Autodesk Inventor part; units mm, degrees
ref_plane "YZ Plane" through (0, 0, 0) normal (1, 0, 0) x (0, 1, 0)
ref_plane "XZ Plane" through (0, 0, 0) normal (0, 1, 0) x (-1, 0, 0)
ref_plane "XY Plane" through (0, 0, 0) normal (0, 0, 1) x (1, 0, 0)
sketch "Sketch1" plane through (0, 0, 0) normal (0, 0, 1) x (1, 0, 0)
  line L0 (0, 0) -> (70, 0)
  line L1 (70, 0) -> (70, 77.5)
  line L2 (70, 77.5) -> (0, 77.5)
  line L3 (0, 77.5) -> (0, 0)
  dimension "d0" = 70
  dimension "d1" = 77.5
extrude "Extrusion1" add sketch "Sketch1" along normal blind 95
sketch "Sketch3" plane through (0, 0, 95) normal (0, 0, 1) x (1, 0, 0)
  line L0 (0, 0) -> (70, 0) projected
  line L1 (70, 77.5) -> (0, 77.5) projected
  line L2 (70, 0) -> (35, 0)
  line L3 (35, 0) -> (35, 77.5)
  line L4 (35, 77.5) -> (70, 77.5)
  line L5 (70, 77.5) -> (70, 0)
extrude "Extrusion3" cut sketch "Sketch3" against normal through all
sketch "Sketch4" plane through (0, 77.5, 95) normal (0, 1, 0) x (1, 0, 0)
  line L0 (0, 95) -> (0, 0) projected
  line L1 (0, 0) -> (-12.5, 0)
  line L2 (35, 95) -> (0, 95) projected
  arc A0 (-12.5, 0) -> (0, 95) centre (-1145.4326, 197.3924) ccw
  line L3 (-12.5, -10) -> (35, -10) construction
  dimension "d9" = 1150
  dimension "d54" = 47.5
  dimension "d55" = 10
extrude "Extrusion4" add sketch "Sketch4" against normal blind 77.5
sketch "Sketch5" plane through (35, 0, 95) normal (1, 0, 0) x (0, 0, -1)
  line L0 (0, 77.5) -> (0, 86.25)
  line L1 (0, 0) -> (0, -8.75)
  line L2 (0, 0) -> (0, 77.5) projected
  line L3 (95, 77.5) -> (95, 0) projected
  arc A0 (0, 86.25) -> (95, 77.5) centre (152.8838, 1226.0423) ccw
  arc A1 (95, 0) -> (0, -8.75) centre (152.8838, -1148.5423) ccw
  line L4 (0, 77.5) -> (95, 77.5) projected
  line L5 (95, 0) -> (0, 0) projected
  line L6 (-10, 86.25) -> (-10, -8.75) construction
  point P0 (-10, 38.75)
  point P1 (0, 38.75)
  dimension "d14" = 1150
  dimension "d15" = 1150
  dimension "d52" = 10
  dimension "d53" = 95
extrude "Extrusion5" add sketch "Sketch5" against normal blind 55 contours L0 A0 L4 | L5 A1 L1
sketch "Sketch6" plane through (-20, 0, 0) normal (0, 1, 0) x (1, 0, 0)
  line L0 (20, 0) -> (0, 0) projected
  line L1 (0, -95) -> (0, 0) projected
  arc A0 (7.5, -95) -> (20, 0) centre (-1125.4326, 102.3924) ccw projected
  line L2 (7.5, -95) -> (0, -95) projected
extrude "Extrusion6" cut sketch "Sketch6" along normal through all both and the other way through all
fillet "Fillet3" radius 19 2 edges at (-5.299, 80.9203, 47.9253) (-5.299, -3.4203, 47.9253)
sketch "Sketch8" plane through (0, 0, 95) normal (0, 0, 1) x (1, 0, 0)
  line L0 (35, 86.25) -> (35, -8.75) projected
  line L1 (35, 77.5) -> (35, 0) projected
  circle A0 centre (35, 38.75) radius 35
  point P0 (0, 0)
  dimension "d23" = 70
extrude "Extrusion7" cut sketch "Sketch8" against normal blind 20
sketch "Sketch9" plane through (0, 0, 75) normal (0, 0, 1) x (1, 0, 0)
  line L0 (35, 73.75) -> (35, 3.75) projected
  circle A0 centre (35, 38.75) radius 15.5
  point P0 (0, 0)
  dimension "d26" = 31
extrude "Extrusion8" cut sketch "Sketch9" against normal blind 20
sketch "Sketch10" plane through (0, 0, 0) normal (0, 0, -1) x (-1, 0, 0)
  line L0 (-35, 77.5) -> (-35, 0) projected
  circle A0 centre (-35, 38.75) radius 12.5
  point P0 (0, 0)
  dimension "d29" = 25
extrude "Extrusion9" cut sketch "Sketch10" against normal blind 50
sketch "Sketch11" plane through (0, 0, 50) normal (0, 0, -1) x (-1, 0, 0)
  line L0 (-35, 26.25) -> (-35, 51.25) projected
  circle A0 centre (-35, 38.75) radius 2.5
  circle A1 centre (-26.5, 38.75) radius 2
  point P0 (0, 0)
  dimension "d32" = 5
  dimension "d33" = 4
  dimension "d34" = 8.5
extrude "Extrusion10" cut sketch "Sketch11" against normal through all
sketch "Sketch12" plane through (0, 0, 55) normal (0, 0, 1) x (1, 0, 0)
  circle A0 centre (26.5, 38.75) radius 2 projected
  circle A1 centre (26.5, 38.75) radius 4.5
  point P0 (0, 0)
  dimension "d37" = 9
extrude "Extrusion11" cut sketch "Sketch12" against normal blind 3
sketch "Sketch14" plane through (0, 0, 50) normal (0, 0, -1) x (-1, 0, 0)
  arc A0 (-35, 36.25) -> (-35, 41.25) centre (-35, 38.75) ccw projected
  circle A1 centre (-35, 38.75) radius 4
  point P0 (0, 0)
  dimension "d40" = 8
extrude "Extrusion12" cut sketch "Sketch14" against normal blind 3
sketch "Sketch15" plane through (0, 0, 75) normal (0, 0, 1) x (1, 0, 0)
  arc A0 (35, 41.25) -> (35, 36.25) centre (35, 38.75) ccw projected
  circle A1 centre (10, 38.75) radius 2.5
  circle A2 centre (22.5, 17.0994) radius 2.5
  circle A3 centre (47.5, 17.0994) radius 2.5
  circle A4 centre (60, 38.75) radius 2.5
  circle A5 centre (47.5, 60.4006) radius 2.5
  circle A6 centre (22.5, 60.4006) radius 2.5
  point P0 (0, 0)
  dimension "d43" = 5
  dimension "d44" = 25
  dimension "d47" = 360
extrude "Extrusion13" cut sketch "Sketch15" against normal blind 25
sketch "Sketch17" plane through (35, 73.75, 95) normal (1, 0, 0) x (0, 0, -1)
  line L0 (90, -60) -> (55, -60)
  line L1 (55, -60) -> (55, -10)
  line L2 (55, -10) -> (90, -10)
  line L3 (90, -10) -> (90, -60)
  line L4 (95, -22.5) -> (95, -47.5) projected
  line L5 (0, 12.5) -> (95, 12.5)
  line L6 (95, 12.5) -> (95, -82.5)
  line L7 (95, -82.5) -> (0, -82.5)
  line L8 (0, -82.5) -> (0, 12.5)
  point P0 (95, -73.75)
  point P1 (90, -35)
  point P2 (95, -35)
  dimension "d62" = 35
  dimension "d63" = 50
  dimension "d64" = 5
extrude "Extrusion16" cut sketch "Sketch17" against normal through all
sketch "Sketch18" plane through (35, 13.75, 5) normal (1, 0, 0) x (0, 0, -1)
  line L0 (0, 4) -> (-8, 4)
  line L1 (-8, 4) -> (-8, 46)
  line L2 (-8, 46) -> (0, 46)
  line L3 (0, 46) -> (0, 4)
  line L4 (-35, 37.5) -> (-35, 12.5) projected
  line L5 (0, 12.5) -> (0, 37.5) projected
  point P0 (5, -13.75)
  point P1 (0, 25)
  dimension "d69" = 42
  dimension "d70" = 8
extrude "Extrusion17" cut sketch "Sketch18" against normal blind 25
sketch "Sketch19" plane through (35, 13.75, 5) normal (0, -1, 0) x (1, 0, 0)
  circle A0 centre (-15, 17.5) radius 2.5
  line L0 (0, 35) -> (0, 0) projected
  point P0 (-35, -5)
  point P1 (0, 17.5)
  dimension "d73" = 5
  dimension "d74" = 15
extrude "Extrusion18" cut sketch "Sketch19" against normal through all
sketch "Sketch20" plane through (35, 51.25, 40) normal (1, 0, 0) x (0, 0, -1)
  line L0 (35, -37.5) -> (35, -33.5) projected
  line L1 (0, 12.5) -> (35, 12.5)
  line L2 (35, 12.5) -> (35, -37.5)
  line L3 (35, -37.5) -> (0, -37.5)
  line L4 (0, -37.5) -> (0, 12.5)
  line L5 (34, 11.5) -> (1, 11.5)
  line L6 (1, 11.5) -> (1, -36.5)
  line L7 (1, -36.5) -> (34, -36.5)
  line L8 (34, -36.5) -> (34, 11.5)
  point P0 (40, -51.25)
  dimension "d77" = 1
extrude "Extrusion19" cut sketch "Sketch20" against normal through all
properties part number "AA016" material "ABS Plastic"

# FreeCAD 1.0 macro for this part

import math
import FreeCAD as App
import Part
import Sketcher

V = App.Vector


def edges_at(feature, points):
    """Names of the edges that pass closest to the given points."""
    edges = feature.Shape.Edges
    near = lambda p: min(range(len(edges)), key=lambda i: edges[i].distToShape(Part.Vertex(*p))[0])
    return sorted({f"Edge{near(p) + 1}" for p in points})

doc = App.newDocument("Part")
body = doc.addObject("PartDesign::Body", "Body")

sketch1 = body.newObject("Sketcher::SketchObject", "Sketch")
sketch1.AttachmentSupport = (doc.getObject("XY_Plane"), [""])
sketch1.MapMode = "FlatFace"
sketch1.addGeometry(Part.LineSegment(V(0, 78, 0), V(0, 0, 0)), False)
sketch1.addGeometry(Part.LineSegment(V(0, 0, 0), V(70, 0, 0)), False)
sketch1.addGeometry(Part.LineSegment(V(70, 0, 0), V(70, 78, 0)), False)
sketch1.addGeometry(Part.LineSegment(V(70, 78, 0), V(0, 78, 0)), False)
sketch1.addConstraint(Sketcher.Constraint("Coincident", 0, 2, 1, 1))
sketch1.addConstraint(Sketcher.Constraint("Coincident", 1, 2, 2, 1))
sketch1.addConstraint(Sketcher.Constraint("Coincident", 2, 2, 3, 1))
sketch1.addConstraint(Sketcher.Constraint("Coincident", 3, 2, 0, 1))
sketch1.addConstraint(Sketcher.Constraint("Vertical", 0))
sketch1.addConstraint(Sketcher.Constraint("Horizontal", 1))
sketch1.addConstraint(Sketcher.Constraint("Vertical", 2))
sketch1.addConstraint(Sketcher.Constraint("Horizontal", 3))
sketch1.addConstraint(Sketcher.Constraint("Coincident", 0, 2, -1, 1))
sketch1.addConstraint(Sketcher.Constraint("DistanceX", 1, 1, 1, 2, 70.0))
sketch1.addConstraint(Sketcher.Constraint("DistanceY", 0, 2, 0, 1, 77.5))
pad1 = body.newObject("PartDesign::Pad", "Pad")
pad1.Profile = sketch1
pad1.Length = 95

sketch2 = body.newObject("Sketcher::SketchObject", "Sketch001")
sketch2.AttachmentSupport = (doc.getObject("XY_Plane"), [""])
sketch2.MapMode = "FlatFace"
sketch2.AttachmentOffset = App.Placement(V(0, 0, 95), App.Rotation())
sketch2.addGeometry(Part.LineSegment(V(35, 78, 0), V(35, 0, 0)), False)
sketch2.addGeometry(Part.LineSegment(V(35, 0, 0), V(70, 0, 0)), False)
sketch2.addGeometry(Part.LineSegment(V(70, 0, 0), V(70, 78, 0)), False)
sketch2.addGeometry(Part.LineSegment(V(70, 78, 0), V(35, 78, 0)), False)
sketch2.addConstraint(Sketcher.Constraint("Coincident", 0, 2, 1, 1))
sketch2.addConstraint(Sketcher.Constraint("Coincident", 1, 2, 2, 1))
sketch2.addConstraint(Sketcher.Constraint("Coincident", 2, 2, 3, 1))
sketch2.addConstraint(Sketcher.Constraint("Coincident", 3, 2, 0, 1))
sketch2.addConstraint(Sketcher.Constraint("Vertical", 0))
sketch2.addConstraint(Sketcher.Constraint("Horizontal", 1))
sketch2.addConstraint(Sketcher.Constraint("Vertical", 2))
sketch2.addConstraint(Sketcher.Constraint("Horizontal", 3))
sketch2.addConstraint(Sketcher.Constraint("PointOnObject", 0, 2, -1))
sketch2.addConstraint(Sketcher.Constraint("DistanceX", 1, 1, 1, 2, 35.0))
sketch2.addConstraint(Sketcher.Constraint("DistanceY", 0, 2, 0, 1, 77.5))
sketch2.addConstraint(Sketcher.Constraint("DistanceX", -1, 1, 0, 2, 35.0))
pocket1 = body.newObject("PartDesign::Pocket", "Pocket")
pocket1.Profile = sketch2
pocket1.Type = "ThroughAll"

sketch3 = body.newObject("Sketcher::SketchObject", "Sketch002")
sketch3.AttachmentSupport = (doc.getObject("XZ_Plane"), [""])
sketch3.MapMode = "FlatFace"
sketch3.AttachmentOffset = App.Placement(V(0, 0, -77.5), App.Rotation())
sketch3.addGeometry(Part.LineSegment(V(0, 95, 0), V(0, 0, 0)), False)
sketch3.addGeometry(Part.ArcOfCircle(Part.Circle(V(-1145, -102, 0), V(0, 0, 1), 1150), math.radians(5.11), math.radians(9.88)), False)
sketch3.addGeometry(Part.LineSegment(V(-12, 95, 0), V(0, 95, 0)), False)
sketch3.addConstraint(Sketcher.Constraint("Coincident", 0, 2, 1, 1))
sketch3.addConstraint(Sketcher.Constraint("Coincident", 1, 2, 2, 1))
sketch3.addConstraint(Sketcher.Constraint("Coincident", 2, 2, 0, 1))
sketch3.addConstraint(Sketcher.Constraint("Vertical", 0))
sketch3.addConstraint(Sketcher.Constraint("Horizontal", 2))
sketch3.addConstraint(Sketcher.Constraint("Coincident", 0, 2, -1, 1))
sketch3.addConstraint(Sketcher.Constraint("DistanceY", 0, 2, 0, 1, 95.0))
sketch3.addConstraint(Sketcher.Constraint("DistanceX", 2, 1, 2, 2, 12.5))
sketch3.addConstraint(Sketcher.Constraint("Radius", 1, 1150.0023))
pad2 = body.newObject("PartDesign::Pad", "Pad001")
pad2.Profile = sketch3
pad2.Length = 77.5

sketch4 = body.newObject("Sketcher::SketchObject", "Sketch003")
sketch4.AttachmentSupport = (doc.getObject("YZ_Plane"), [""])
sketch4.MapMode = "FlatFace"
sketch4.AttachmentOffset = App.Placement(V(0, 0, 35), App.Rotation())
sketch4.addGeometry(Part.LineSegment(V(86, 95, 0), V(78, 95, 0)), False)
sketch4.addGeometry(Part.LineSegment(V(78, 95, 0), V(78, 0, 0)), False)
sketch4.addGeometry(Part.ArcOfCircle(Part.Circle(V(1226, -58, 0), V(0, 0, 1), 1150), math.radians(172.36), math.radians(177.11)), False)
sketch4.addGeometry(Part.LineSegment(V(0, 0, 0), V(0, 95, 0)), False)
sketch4.addGeometry(Part.LineSegment(V(0, 95, 0), V(-9, 95, 0)), False)
sketch4.addGeometry(Part.ArcOfCircle(Part.Circle(V(-1149, -58, 0), V(0, 0, 1), 1150), math.radians(2.89), math.radians(7.64)), False)
sketch4.addConstraint(Sketcher.Constraint("Coincident", 0, 2, 1, 1))
sketch4.addConstraint(Sketcher.Constraint("Coincident", 1, 2, 2, 2))
sketch4.addConstraint(Sketcher.Constraint("Coincident", 2, 1, 0, 1))
sketch4.addConstraint(Sketcher.Constraint("Coincident", 3, 2, 4, 1))
sketch4.addConstraint(Sketcher.Constraint("Coincident", 4, 2, 5, 2))
sketch4.addConstraint(Sketcher.Constraint("Coincident", 5, 1, 3, 1))
sketch4.addConstraint(Sketcher.Constraint("Horizontal", 0))
sketch4.addConstraint(Sketcher.Constraint("Vertical", 1))
sketch4.addConstraint(Sketcher.Constraint("Vertical", 3))
sketch4.addConstraint(Sketcher.Constraint("Horizontal", 4))
sketch4.addConstraint(Sketcher.Constraint("PointOnObject", 1, 2, -1))
sketch4.addConstraint(Sketcher.Constraint("PointOnObject", 3, 2, -2))
sketch4.addConstraint(Sketcher.Constraint("Equal", 0, 4))
sketch4.addConstraint(Sketcher.Constraint("Equal", 1, 3))
sketch4.addConstraint(Sketcher.Constraint("DistanceY", 1, 2, 1, 1, 95.0))
sketch4.addConstraint(Sketcher.Constraint("DistanceY", -1, 1, 3, 2, 95.0))
sketch4.addConstraint(Sketcher.Constraint("DistanceX", 4, 2, 2, 1, 95.0))
sketch4.addConstraint(Sketcher.Constraint("DistanceX", 0, 2, 0, 1, 8.75))
sketch4.addConstraint(Sketcher.Constraint("Radius", 2, 1150.0014))
sketch4.addConstraint(Sketcher.Constraint("Radius", 5, 1149.9985))
pad3 = body.newObject("PartDesign::Pad", "Pad002")
pad3.Profile = sketch4
pad3.Length = 55
pad3.Reversed = True

sketch5 = body.newObject("Sketcher::SketchObject", "Sketch004")
sketch5.AttachmentSupport = (doc.getObject("XZ_Plane"), [""])
sketch5.MapMode = "FlatFace"
sketch5.addGeometry(Part.ArcOfCircle(Part.Circle(V(-1145, -102, 0), V(0, 0, 1), 1150), math.radians(5.11), math.radians(9.88)), False)
sketch5.addGeometry(Part.LineSegment(V(0, 0, 0), V(-20, 0, 0)), False)
sketch5.addGeometry(Part.LineSegment(V(-20, 0, 0), V(-20, 95, 0)), False)
sketch5.addGeometry(Part.LineSegment(V(-20, 95, 0), V(-12, 95, 0)), False)
sketch5.addConstraint(Sketcher.Constraint("Coincident", 0, 1, 1, 1))
sketch5.addConstraint(Sketcher.Constraint("Coincident", 1, 2, 2, 1))
sketch5.addConstraint(Sketcher.Constraint("Coincident", 2, 2, 3, 1))
sketch5.addConstraint(Sketcher.Constraint("Coincident", 3, 2, 0, 2))
sketch5.addConstraint(Sketcher.Constraint("Horizontal", 1))
sketch5.addConstraint(Sketcher.Constraint("Vertical", 2))
sketch5.addConstraint(Sketcher.Constraint("Horizontal", 3))
sketch5.addConstraint(Sketcher.Constraint("PointOnObject", 1, 2, -1))
sketch5.addConstraint(Sketcher.Constraint("DistanceX", 1, 2, 1, 1, 20.0))
sketch5.addConstraint(Sketcher.Constraint("DistanceY", 2, 1, 2, 2, 95.0))
sketch5.addConstraint(Sketcher.Constraint("DistanceX", 3, 1, 3, 2, 7.5))
sketch5.addConstraint(Sketcher.Constraint("DistanceX", 1, 2, -1, 1, 20.0))
sketch5.addConstraint(Sketcher.Constraint("Radius", 0, 1150.0023))
pocket2 = body.newObject("PartDesign::Pocket", "Pocket001")
pocket2.Profile = sketch5
pocket2.Type = "ThroughAll"
pocket2.Midplane = True
doc.recompute()

fillet = body.newObject("PartDesign::Fillet", "Fillet")
fillet.Base = (pocket2, edges_at(pocket2, [(-5.299, 80.92, 47.925), (-5.299, -3.42, 47.925)]))
fillet.Radius = 19

sketch6 = body.newObject("Sketcher::SketchObject", "Sketch005")
sketch6.AttachmentSupport = (doc.getObject("XY_Plane"), [""])
sketch6.MapMode = "FlatFace"
sketch6.AttachmentOffset = App.Placement(V(0, 0, 95), App.Rotation())
sketch6.addGeometry(Part.Circle(V(35, 39, 0), V(0, 0, 1), 35), False)
sketch6.addConstraint(Sketcher.Constraint("Diameter", 0, 70.0))
sketch6.addConstraint(Sketcher.Constraint("DistanceX", -1, 1, 0, 3, 35.0))
sketch6.addConstraint(Sketcher.Constraint("DistanceY", -1, 1, 0, 3, 38.75))
pocket3 = body.newObject("PartDesign::Pocket", "Pocket002")
pocket3.Profile = sketch6
pocket3.Length = 20

sketch7 = body.newObject("Sketcher::SketchObject", "Sketch006")
sketch7.AttachmentSupport = (doc.getObject("XY_Plane"), [""])
sketch7.MapMode = "FlatFace"
sketch7.AttachmentOffset = App.Placement(V(0, 0, 75), App.Rotation())
sketch7.addGeometry(Part.Circle(V(35, 39, 0), V(0, 0, 1), 16), False)
sketch7.addConstraint(Sketcher.Constraint("Diameter", 0, 31.0))
sketch7.addConstraint(Sketcher.Constraint("DistanceX", -1, 1, 0, 3, 35.0))
sketch7.addConstraint(Sketcher.Constraint("DistanceY", -1, 1, 0, 3, 38.75))
pocket4 = body.newObject("PartDesign::Pocket", "Pocket003")
pocket4.Profile = sketch7
pocket4.Length = 20

sketch8 = body.newObject("Sketcher::SketchObject", "Sketch007")
sketch8.AttachmentSupport = (doc.getObject("XY_Plane"), [""])
sketch8.MapMode = "FlatFace"
sketch8.addGeometry(Part.Circle(V(35, 39, 0), V(0, 0, 1), 12), False)
sketch8.addConstraint(Sketcher.Constraint("Diameter", 0, 25.0))
sketch8.addConstraint(Sketcher.Constraint("DistanceX", -1, 1, 0, 3, 35.0))
sketch8.addConstraint(Sketcher.Constraint("DistanceY", -1, 1, 0, 3, 38.75))
pocket5 = body.newObject("PartDesign::Pocket", "Pocket004")
pocket5.Profile = sketch8
pocket5.Length = 50
pocket5.Reversed = True

sketch9 = body.newObject("Sketcher::SketchObject", "Sketch008")
sketch9.AttachmentSupport = (doc.getObject("XY_Plane"), [""])
sketch9.MapMode = "FlatFace"
sketch9.AttachmentOffset = App.Placement(V(0, 0, 50), App.Rotation())
sketch9.addGeometry(Part.Circle(V(35, 38.8, 0), V(0, 0, 1), 2.5), False)
sketch9.addGeometry(Part.Circle(V(26.5, 38.8, 0), V(0, 0, 1), 2), False)
sketch9.addConstraint(Sketcher.Constraint("Horizontal", 0, 3, 1, 3))
sketch9.addConstraint(Sketcher.Constraint("Diameter", 0, 5.0))
sketch9.addConstraint(Sketcher.Constraint("Diameter", 1, 4.0))
sketch9.addConstraint(Sketcher.Constraint("DistanceX", 1, 3, 0, 3, 8.5))
sketch9.addConstraint(Sketcher.Constraint("DistanceX", -1, 1, 0, 3, 35.0))
sketch9.addConstraint(Sketcher.Constraint("DistanceY", -1, 1, 0, 3, 38.75))
pocket6 = body.newObject("PartDesign::Pocket", "Pocket005")
pocket6.Profile = sketch9
pocket6.Type = "ThroughAll"
pocket6.Reversed = True

sketch10 = body.newObject("Sketcher::SketchObject", "Sketch009")
sketch10.AttachmentSupport = (doc.getObject("XY_Plane"), [""])
sketch10.MapMode = "FlatFace"
sketch10.AttachmentOffset = App.Placement(V(0, 0, 55), App.Rotation())
sketch10.addGeometry(Part.Circle(V(26.5, 38.8, 0), V(0, 0, 1), 4.5), False)
sketch10.addGeometry(Part.Circle(V(26.5, 38.8, 0), V(0, 0, 1), 2), False)
sketch10.addConstraint(Sketcher.Constraint("Coincident", 1, 3, 0, 3))
sketch10.addConstraint(Sketcher.Constraint("Diameter", 0, 9.0))
sketch10.addConstraint(Sketcher.Constraint("Diameter", 1, 4.0))
sketch10.addConstraint(Sketcher.Constraint("DistanceX", -1, 1, 0, 3, 26.5))
sketch10.addConstraint(Sketcher.Constraint("DistanceY", -1, 1, 0, 3, 38.75))
pocket7 = body.newObject("PartDesign::Pocket", "Pocket006")
pocket7.Profile = sketch10
pocket7.Length = 3

sketch11 = body.newObject("Sketcher::SketchObject", "Sketch010")
sketch11.AttachmentSupport = (doc.getObject("XY_Plane"), [""])
sketch11.MapMode = "FlatFace"
sketch11.AttachmentOffset = App.Placement(V(0, 0, 50), App.Rotation())
sketch11.addGeometry(Part.Circle(V(35, 38.8, 0), V(0, 0, 1), 4), False)
sketch11.addConstraint(Sketcher.Constraint("Diameter", 0, 8.0))
sketch11.addConstraint(Sketcher.Constraint("DistanceX", -1, 1, 0, 3, 35.0))
sketch11.addConstraint(Sketcher.Constraint("DistanceY", -1, 1, 0, 3, 38.75))
pocket8 = body.newObject("PartDesign::Pocket", "Pocket007")
pocket8.Profile = sketch11
pocket8.Length = 3
pocket8.Reversed = True

sketch12 = body.newObject("Sketcher::SketchObject", "Sketch011")
sketch12.AttachmentSupport = (doc.getObject("XY_Plane"), [""])
sketch12.MapMode = "FlatFace"
sketch12.AttachmentOffset = App.Placement(V(0, 0, 75), App.Rotation())
sketch12.addGeometry(Part.Circle(V(10, 38.8, 0), V(0, 0, 1), 2.5), False)
sketch12.addGeometry(Part.Circle(V(22.5, 17.1, 0), V(0, 0, 1), 2.5), False)
sketch12.addGeometry(Part.Circle(V(47.5, 17.1, 0), V(0, 0, 1), 2.5), False)
sketch12.addGeometry(Part.Circle(V(60, 38.8, 0), V(0, 0, 1), 2.5), False)
sketch12.addGeometry(Part.Circle(V(47.5, 60.4, 0), V(0, 0, 1), 2.5), False)
sketch12.addGeometry(Part.Circle(V(22.5, 60.4, 0), V(0, 0, 1), 2.5), False)
sketch12.addConstraint(Sketcher.Constraint("Equal", 0, 1))
sketch12.addConstraint(Sketcher.Constraint("Equal", 1, 2))
sketch12.addConstraint(Sketcher.Constraint("Equal", 2, 3))
sketch12.addConstraint(Sketcher.Constraint("Equal", 3, 4))
sketch12.addConstraint(Sketcher.Constraint("Equal", 4, 5))
sketch12.addConstraint(Sketcher.Constraint("Horizontal", 1, 3, 2, 3))
sketch12.addConstraint(Sketcher.Constraint("Horizontal", 0, 3, 3, 3))
sketch12.addConstraint(Sketcher.Constraint("Horizontal", 4, 3, 5, 3))
sketch12.addConstraint(Sketcher.Constraint("Vertical", 2, 3, 4, 3))
sketch12.addConstraint(Sketcher.Constraint("Vertical", 1, 3, 5, 3))
sketch12.addConstraint(Sketcher.Constraint("Diameter", 0, 5.0))
sketch12.addConstraint(Sketcher.Constraint("DistanceX", 1, 3, 2, 3, 25.0))
sketch12.addConstraint(Sketcher.Constraint("DistanceX", -1, 1, 0, 3, 10.0))
sketch12.addConstraint(Sketcher.Constraint("DistanceX", -1, 1, 3, 3, 60.0))
sketch12.addConstraint(Sketcher.Constraint("DistanceX", -1, 1, 1, 3, 22.5))
sketch12.addConstraint(Sketcher.Constraint("DistanceY", -1, 1, 0, 3, 38.75))
sketch12.addConstraint(Sketcher.Constraint("DistanceY", -1, 1, 1, 3, 17.0994))
sketch12.addConstraint(Sketcher.Constraint("DistanceY", -1, 1, 4, 3, 60.4006))
pocket9 = body.newObject("PartDesign::Pocket", "Pocket008")
pocket9.Profile = sketch12
pocket9.Length = 25

sketch13 = body.newObject("Sketcher::SketchObject", "Sketch012")
sketch13.AttachmentSupport = (doc.getObject("YZ_Plane"), [""])
sketch13.MapMode = "FlatFace"
sketch13.AttachmentOffset = App.Placement(V(0, 0, 35), App.Rotation())
sketch13.addGeometry(Part.LineSegment(V(-9, 0, 0), V(86, 0, 0)), False)
sketch13.addGeometry(Part.LineSegment(V(86, 0, 0), V(86, 95, 0)), False)
sketch13.addGeometry(Part.LineSegment(V(86, 95, 0), V(-9, 95, 0)), False)
sketch13.addGeometry(Part.LineSegment(V(-9, 95, 0), V(-9, 0, 0)), False)
sketch13.addGeometry(Part.LineSegment(V(64, 5, 0), V(14, 5, 0)), False)
sketch13.addGeometry(Part.LineSegment(V(14, 5, 0), V(14, 40, 0)), False)
sketch13.addGeometry(Part.LineSegment(V(14, 40, 0), V(64, 40, 0)), False)
sketch13.addGeometry(Part.LineSegment(V(64, 40, 0), V(64, 5, 0)), False)
sketch13.addConstraint(Sketcher.Constraint("Coincident", 0, 2, 1, 1))
sketch13.addConstraint(Sketcher.Constraint("Coincident", 1, 2, 2, 1))
sketch13.addConstraint(Sketcher.Constraint("Coincident", 2, 2, 3, 1))
sketch13.addConstraint(Sketcher.Constraint("Coincident", 3, 2, 0, 1))
sketch13.addConstraint(Sketcher.Constraint("Coincident", 4, 2, 5, 1))
sketch13.addConstraint(Sketcher.Constraint("Coincident", 5, 2, 6, 1))
sketch13.addConstraint(Sketcher.Constraint("Coincident", 6, 2, 7, 1))
sketch13.addConstraint(Sketcher.Constraint("Coincident", 7, 2, 4, 1))
sketch13.addConstraint(Sketcher.Constraint("Horizontal", 0))
sketch13.addConstraint(Sketcher.Constraint("Vertical", 1))
sketch13.addConstraint(Sketcher.Constraint("Horizontal", 2))
sketch13.addConstraint(Sketcher.Constraint("Vertical", 3))
sketch13.addConstraint(Sketcher.Constraint("Horizontal", 4))
sketch13.addConstraint(Sketcher.Constraint("Vertical", 5))
sketch13.addConstraint(Sketcher.Constraint("Horizontal", 6))
sketch13.addConstraint(Sketcher.Constraint("Vertical", 7))
sketch13.addConstraint(Sketcher.Constraint("PointOnObject", 0, 2, -1))
sketch13.addConstraint(Sketcher.Constraint("Equal", 2, 1))
sketch13.addConstraint(Sketcher.Constraint("DistanceX", 4, 2, 4, 1, 50.0))
sketch13.addConstraint(Sketcher.Constraint("DistanceY", 5, 1, 5, 2, 35.0))
sketch13.addConstraint(Sketcher.Constraint("DistanceY", -1, 1, 4, 2, 5.0))
sketch13.addConstraint(Sketcher.Constraint("DistanceX", 0, 1, 0, 2, 95.0))
sketch13.addConstraint(Sketcher.Constraint("DistanceX", 3, 2, 4, 2, 22.5))
sketch13.addConstraint(Sketcher.Constraint("DistanceX", -1, 1, 0, 2, 86.25))
pocket10 = body.newObject("PartDesign::Pocket", "Pocket009")
pocket10.Profile = sketch13
pocket10.Type = "ThroughAll"

sketch14 = body.newObject("Sketcher::SketchObject", "Sketch013")
sketch14.AttachmentSupport = (doc.getObject("YZ_Plane"), [""])
sketch14.MapMode = "FlatFace"
sketch14.AttachmentOffset = App.Placement(V(0, 0, 35), App.Rotation())
sketch14.addGeometry(Part.LineSegment(V(18, 13, 0), V(18, 5, 0)), False)
sketch14.addGeometry(Part.LineSegment(V(18, 5, 0), V(60, 5, 0)), False)
sketch14.addGeometry(Part.LineSegment(V(60, 5, 0), V(60, 13, 0)), False)
sketch14.addGeometry(Part.LineSegment(V(60, 13, 0), V(18, 13, 0)), False)
sketch14.addConstraint(Sketcher.Constraint("Coincident", 0, 2, 1, 1))
sketch14.addConstraint(Sketcher.Constraint("Coincident", 1, 2, 2, 1))
sketch14.addConstraint(Sketcher.Constraint("Coincident", 2, 2, 3, 1))
sketch14.addConstraint(Sketcher.Constraint("Coincident", 3, 2, 0, 1))
sketch14.addConstraint(Sketcher.Constraint("Vertical", 0))
sketch14.addConstraint(Sketcher.Constraint("Horizontal", 1))
sketch14.addConstraint(Sketcher.Constraint("Vertical", 2))
sketch14.addConstraint(Sketcher.Constraint("Horizontal", 3))
sketch14.addConstraint(Sketcher.Constraint("DistanceX", 1, 1, 1, 2, 42.0))
sketch14.addConstraint(Sketcher.Constraint("DistanceY", 0, 2, 0, 1, 8.0))
sketch14.addConstraint(Sketcher.Constraint("DistanceY", -1, 1, 0, 2, 5.0))
sketch14.addConstraint(Sketcher.Constraint("DistanceX", -1, 1, 0, 2, 17.75))
pocket11 = body.newObject("PartDesign::Pocket", "Pocket010")
pocket11.Profile = sketch14
pocket11.Length = 25

sketch15 = body.newObject("Sketcher::SketchObject", "Sketch014")
sketch15.AttachmentSupport = (doc.getObject("XZ_Plane"), [""])
sketch15.MapMode = "FlatFace"
sketch15.AttachmentOffset = App.Placement(V(0, 0, -13.75), App.Rotation())
sketch15.addGeometry(Part.Circle(V(20, 22.5, 0), V(0, 0, 1), 2.5), False)
sketch15.addConstraint(Sketcher.Constraint("Diameter", 0, 5.0))
sketch15.addConstraint(Sketcher.Constraint("DistanceX", -1, 1, 0, 3, 20.0))
sketch15.addConstraint(Sketcher.Constraint("DistanceY", -1, 1, 0, 3, 22.5))
pocket12 = body.newObject("PartDesign::Pocket", "Pocket011")
pocket12.Profile = sketch15
pocket12.Type = "ThroughAll"

sketch16 = body.newObject("Sketcher::SketchObject", "Sketch015")
sketch16.AttachmentSupport = (doc.getObject("YZ_Plane"), [""])
sketch16.MapMode = "FlatFace"
sketch16.AttachmentOffset = App.Placement(V(0, 0, 35), App.Rotation())
sketch16.addGeometry(Part.LineSegment(V(14, 40, 0), V(14, 5, 0)), False)
sketch16.addGeometry(Part.LineSegment(V(14, 5, 0), V(64, 5, 0)), False)
sketch16.addGeometry(Part.LineSegment(V(64, 5, 0), V(64, 40, 0)), False)
sketch16.addGeometry(Part.LineSegment(V(64, 40, 0), V(14, 40, 0)), False)
sketch16.addGeometry(Part.LineSegment(V(63, 39, 0), V(63, 6, 0)), False)
sketch16.addGeometry(Part.LineSegment(V(63, 6, 0), V(15, 6, 0)), False)
sketch16.addGeometry(Part.LineSegment(V(15, 6, 0), V(15, 39, 0)), False)
sketch16.addGeometry(Part.LineSegment(V(15, 39, 0), V(63, 39, 0)), False)
sketch16.addConstraint(Sketcher.Constraint("Coincident", 0, 2, 1, 1))
sketch16.addConstraint(Sketcher.Constraint("Coincident", 1, 2, 2, 1))
sketch16.addConstraint(Sketcher.Constraint("Coincident", 2, 2, 3, 1))
sketch16.addConstraint(Sketcher.Constraint("Coincident", 3, 2, 0, 1))
sketch16.addConstraint(Sketcher.Constraint("Coincident", 4, 2, 5, 1))
sketch16.addConstraint(Sketcher.Constraint("Coincident", 5, 2, 6, 1))
sketch16.addConstraint(Sketcher.Constraint("Coincident", 6, 2, 7, 1))
sketch16.addConstraint(Sketcher.Constraint("Coincident", 7, 2, 4, 1))
sketch16.addConstraint(Sketcher.Constraint("Vertical", 0))
sketch16.addConstraint(Sketcher.Constraint("Horizontal", 1))
sketch16.addConstraint(Sketcher.Constraint("Vertical", 2))
sketch16.addConstraint(Sketcher.Constraint("Horizontal", 3))
sketch16.addConstraint(Sketcher.Constraint("Vertical", 4))
sketch16.addConstraint(Sketcher.Constraint("Horizontal", 5))
sketch16.addConstraint(Sketcher.Constraint("Vertical", 6))
sketch16.addConstraint(Sketcher.Constraint("Horizontal", 7))
sketch16.addConstraint(Sketcher.Constraint("DistanceX", 4, 2, 1, 2, 1.0))
sketch16.addConstraint(Sketcher.Constraint("DistanceY", 1, 2, 4, 2, 1.0))
sketch16.addConstraint(Sketcher.Constraint("DistanceX", 0, 2, 5, 2, 1.0))
sketch16.addConstraint(Sketcher.Constraint("DistanceY", 6, 2, 3, 2, 1.0))
sketch16.addConstraint(Sketcher.Constraint("DistanceX", 1, 1, 1, 2, 50.0))
sketch16.addConstraint(Sketcher.Constraint("DistanceY", 0, 2, 0, 1, 35.0))
sketch16.addConstraint(Sketcher.Constraint("DistanceY", -1, 1, 0, 2, 5.0))
sketch16.addConstraint(Sketcher.Constraint("DistanceX", -1, 1, 0, 2, 13.75))
pocket13 = body.newObject("PartDesign::Pocket", "Pocket012")
pocket13.Profile = sketch16
pocket13.Type = "ThroughAll"

doc.recompute()
